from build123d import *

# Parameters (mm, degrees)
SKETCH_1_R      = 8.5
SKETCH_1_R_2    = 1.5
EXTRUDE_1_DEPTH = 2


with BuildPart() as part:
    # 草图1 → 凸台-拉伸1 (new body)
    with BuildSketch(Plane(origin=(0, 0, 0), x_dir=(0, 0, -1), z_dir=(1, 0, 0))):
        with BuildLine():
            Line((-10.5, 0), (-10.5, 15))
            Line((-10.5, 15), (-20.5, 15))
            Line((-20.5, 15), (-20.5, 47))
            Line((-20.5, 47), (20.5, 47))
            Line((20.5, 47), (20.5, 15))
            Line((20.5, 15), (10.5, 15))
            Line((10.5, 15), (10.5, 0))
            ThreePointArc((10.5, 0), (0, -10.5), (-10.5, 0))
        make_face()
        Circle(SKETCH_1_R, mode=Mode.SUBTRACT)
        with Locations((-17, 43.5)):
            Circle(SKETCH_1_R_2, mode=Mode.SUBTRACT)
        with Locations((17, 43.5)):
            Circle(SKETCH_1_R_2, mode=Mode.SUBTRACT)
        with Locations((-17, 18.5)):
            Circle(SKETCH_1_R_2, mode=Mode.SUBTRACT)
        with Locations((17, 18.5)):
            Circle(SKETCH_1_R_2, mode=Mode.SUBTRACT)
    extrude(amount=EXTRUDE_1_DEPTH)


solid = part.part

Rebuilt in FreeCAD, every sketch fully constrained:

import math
import FreeCAD as App
import Part
import Sketcher

V = App.Vector

doc = App.newDocument("Part")
body = doc.addObject("PartDesign::Body", "Body")

# Sketch on YZ plane
sketch1 = body.newObject("Sketcher::SketchObject", "Sketch")
sketch1.AttachmentSupport = (doc.getObject("YZ_Plane"), [""])
sketch1.MapMode = "FlatFace"
sketch1.addGeometry([
    Part.LineSegment(V(15, 10.5, 0), V(0, 10.5, 0)),  # 0
    Part.ArcOfCircle(Part.Circle(V(0, 0, 0), V(0, 0, 1), 10.5), math.radians(90), math.radians(270)),  # 1
    Part.LineSegment(V(0, -10.5, 0), V(15, -10.5, 0)),  # 2
    Part.LineSegment(V(15, -10.5, 0), V(15, -20.5, 0)),  # 3
    Part.LineSegment(V(15, -20.5, 0), V(47, -20.5, 0)),  # 4
    Part.LineSegment(V(47, -20.5, 0), V(47, 20.5, 0)),  # 5
    Part.LineSegment(V(47, 20.5, 0), V(15, 20.5, 0)),  # 6
    Part.LineSegment(V(15, 20.5, 0), V(15, 10.5, 0)),  # 7
    Part.Circle(V(0, 0, 0), V(0, 0, 1), 8.5),  # 8
    Part.Circle(V(18.5, -17, 0), V(0, 0, 1), 1.5),  # 9
    Part.Circle(V(43.5, -17, 0), V(0, 0, 1), 1.5),  # 10
    Part.Circle(V(18.5, 17, 0), V(0, 0, 1), 1.5),  # 11
    Part.Circle(V(43.5, 17, 0), V(0, 0, 1), 1.5),  # 12
], False)
sketch1.addConstraint([
    Sketcher.Constraint("Tangent", 0, 2, 1, 1),
    Sketcher.Constraint("Tangent", 1, 2, 2, 1),
    Sketcher.Constraint("Coincident", 2, 2, 3, 1),
    Sketcher.Constraint("Coincident", 3, 2, 4, 1),
    Sketcher.Constraint("Coincident", 4, 2, 5, 1),
    Sketcher.Constraint("Coincident", 5, 2, 6, 1),
    Sketcher.Constraint("Coincident", 6, 2, 7, 1),
    Sketcher.Constraint("Coincident", 7, 2, 0, 1),
    Sketcher.Constraint("Horizontal", 0),
    Sketcher.Constraint("Horizontal", 2),
    Sketcher.Constraint("Vertical", 3),
    Sketcher.Constraint("Horizontal", 4),
    Sketcher.Constraint("Vertical", 5),
    Sketcher.Constraint("Horizontal", 6),
    Sketcher.Constraint("Vertical", 7),
    Sketcher.Constraint("Coincident", 1, 3, -1, 1),
    Sketcher.Constraint("Coincident", 8, 3, -1, 1),
    Sketcher.Constraint("Equal", 9, 10),
    Sketcher.Constraint("Equal", 10, 11),
    Sketcher.Constraint("Equal", 11, 12),
    Sketcher.Constraint("Symmetric", 9, 3, 11, 3, -1),
    Sketcher.Constraint("Symmetric", 10, 3, 12, 3, -1),
    Sketcher.Constraint("Symmetric", 3, 2, 6, 2, -1),
    Sketcher.Constraint("Horizontal", 9, 3, 10, 3),
    Sketcher.Constraint("Diameter", 8, 17.0),
    Sketcher.Constraint("Diameter", 9, 3.0),
    Sketcher.Constraint("Radius", 1, 10.5),
    Sketcher.Constraint("DistanceX", 0, 2, 0, 1, 15.0),
    Sketcher.Constraint("DistanceX", 4, 1, 4, 2, 32.0),
    Sketcher.Constraint("DistanceY", 3, 2, 3, 1, 10.0),
    Sketcher.Constraint("DistanceY", 9, 3, -1, 1, 17.0),
    Sketcher.Constraint("DistanceX", 9, 3, 10, 3, 25.0),
    Sketcher.Constraint("DistanceX", -1, 1, 9, 3, 18.5),
])
pad1 = body.newObject("PartDesign::Pad", "Pad")
pad1.Profile = sketch1
pad1.Length = 2

doc.recompute()
